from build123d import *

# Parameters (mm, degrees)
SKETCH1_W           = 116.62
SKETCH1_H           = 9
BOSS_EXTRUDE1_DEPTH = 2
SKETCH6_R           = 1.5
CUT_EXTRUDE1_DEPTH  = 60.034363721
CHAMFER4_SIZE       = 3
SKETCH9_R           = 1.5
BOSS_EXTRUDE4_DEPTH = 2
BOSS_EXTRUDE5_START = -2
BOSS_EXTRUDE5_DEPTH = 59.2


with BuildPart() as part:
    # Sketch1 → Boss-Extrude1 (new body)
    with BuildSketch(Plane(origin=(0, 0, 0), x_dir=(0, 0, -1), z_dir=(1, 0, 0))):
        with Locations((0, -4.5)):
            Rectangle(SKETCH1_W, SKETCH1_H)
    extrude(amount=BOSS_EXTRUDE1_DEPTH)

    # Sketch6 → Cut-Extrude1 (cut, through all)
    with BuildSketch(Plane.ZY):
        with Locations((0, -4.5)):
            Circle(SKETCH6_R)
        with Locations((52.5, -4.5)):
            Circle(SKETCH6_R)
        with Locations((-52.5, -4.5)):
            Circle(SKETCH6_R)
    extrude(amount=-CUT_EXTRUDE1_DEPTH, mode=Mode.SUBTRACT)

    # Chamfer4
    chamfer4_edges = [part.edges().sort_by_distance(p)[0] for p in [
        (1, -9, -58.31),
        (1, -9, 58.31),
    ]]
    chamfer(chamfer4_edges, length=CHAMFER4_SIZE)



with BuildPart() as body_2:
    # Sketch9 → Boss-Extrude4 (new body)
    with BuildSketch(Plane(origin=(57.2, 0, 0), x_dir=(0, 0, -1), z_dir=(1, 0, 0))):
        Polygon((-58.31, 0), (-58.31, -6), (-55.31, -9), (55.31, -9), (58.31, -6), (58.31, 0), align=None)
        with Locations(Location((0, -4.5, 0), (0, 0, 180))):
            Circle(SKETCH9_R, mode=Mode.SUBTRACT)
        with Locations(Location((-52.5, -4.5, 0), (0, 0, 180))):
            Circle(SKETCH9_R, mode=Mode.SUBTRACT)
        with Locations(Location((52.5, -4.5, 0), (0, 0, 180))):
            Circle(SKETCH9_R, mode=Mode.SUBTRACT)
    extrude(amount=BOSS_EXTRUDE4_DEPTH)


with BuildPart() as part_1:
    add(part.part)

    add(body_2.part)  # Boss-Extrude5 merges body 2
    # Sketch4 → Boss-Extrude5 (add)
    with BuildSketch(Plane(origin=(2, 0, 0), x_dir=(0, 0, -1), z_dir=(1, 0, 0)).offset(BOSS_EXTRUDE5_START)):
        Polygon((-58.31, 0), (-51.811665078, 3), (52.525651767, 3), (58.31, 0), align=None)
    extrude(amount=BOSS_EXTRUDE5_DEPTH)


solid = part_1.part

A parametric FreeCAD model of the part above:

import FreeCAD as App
import Part
import Sketcher

V = App.Vector
Q = App.Units.Quantity


def edges_at(feature, points):
    """Names of the edges that pass closest to the given points."""
    edges = feature.Shape.Edges
    near = lambda p: min(range(len(edges)), key=lambda i: edges[i].distToShape(Part.Vertex(*p))[0])
    return sorted({f"Edge{near(p) + 1}" for p in points})


def add_polygon(sketch, points):
    """Adds a closed chain of lines whose ends are joined by coincident constraints."""
    first, n = sketch.GeometryCount, len(points)
    for a, b in zip(points, points[1:] + points[:1]):
        sketch.addGeometry(Part.LineSegment(App.Vector(*a, 0), App.Vector(*b, 0)), False)
    for i in range(n):
        sketch.addConstraint(Sketcher.Constraint("Coincident", first + i, 2, first + (i + 1) % n, 1))

doc = App.newDocument("Part")
body = doc.addObject("PartDesign::Body", "Body")

# Sketch on YZ plane
sketch1 = doc.addObject("Sketcher::SketchObject", "Sketch")
body.addObject(sketch1)
sketch1.AttachmentSupport = (doc.YZ_Plane, [""])
sketch1.MapMode = "FlatFace"
add_polygon(sketch1, [(0, 58), (-9, 58), (-9, -58), (0, -58)])  # lines 0-3
sketch1.addConstraint(Sketcher.Constraint("Horizontal", 0))
sketch1.addConstraint(Sketcher.Constraint("Vertical", 1))
sketch1.addConstraint(Sketcher.Constraint("Horizontal", 2))
sketch1.addConstraint(Sketcher.Constraint("Vertical", 3))
sketch1.addConstraint(Sketcher.Constraint("Symmetric", 2, 2, 3, 2, -1, 1))
sketch1.addConstraint(Sketcher.Constraint("DistanceX", 0, 2, 0, 1, Q("9 mm")))
sketch1.addConstraint(Sketcher.Constraint("DistanceY", 1, 2, 1, 1, Q("116.62 mm")))
pad1 = doc.addObject("PartDesign::Pad", "Pad")
body.addObject(pad1)
pad1.Profile = sketch1
pad1.Length = 2

# Sketch on YZ plane
sketch2 = doc.addObject("Sketcher::SketchObject", "Sketch001")
body.addObject(sketch2)
sketch2.AttachmentSupport = (doc.YZ_Plane, [""])
sketch2.MapMode = "FlatFace"
sketch2.addGeometry(Part.Circle(V(-4.5, 0, 0), V(0, 0, 1), 1.5), False)
sketch2.addGeometry(Part.Circle(V(-4.5, 52.5, 0), V(0, 0, 1), 1.5), False)
sketch2.addGeometry(Part.Circle(V(-4.5, -52.5, 0), V(0, 0, 1), 1.5), False)
sketch2.addConstraint(Sketcher.Constraint("Equal", 0, 1))
sketch2.addConstraint(Sketcher.Constraint("Equal", 1, 2))
sketch2.addConstraint(Sketcher.Constraint("Symmetric", 1, 3, 2, 3, -1))
sketch2.addConstraint(Sketcher.Constraint("PointOnObject", 0, 3, -1))
sketch2.addConstraint(Sketcher.Constraint("Vertical", 0, 3, 1, 3))
sketch2.addConstraint(Sketcher.Constraint("Diameter", 0, Q("3 mm")))
sketch2.addConstraint(Sketcher.Constraint("DistanceY", 2, 3, 1, 3, Q("105 mm")))
sketch2.addConstraint(Sketcher.Constraint("DistanceX", 0, 3, -1, 1, Q("4.5 mm")))
pocket1 = doc.addObject("PartDesign::Pocket", "Pocket")
body.addObject(pocket1)
pocket1.Profile = sketch2
pocket1.Type = "ThroughAll"
pocket1.Reversed = True
doc.recompute()

chamfer = doc.addObject("PartDesign::Chamfer", "Chamfer")
body.addObject(chamfer)
chamfer.Base = (pocket1, edges_at(pocket1, [(1, -9, -58.31), (1, -9, 58.31)]))
chamfer.Size = 3
body2 = doc.addObject("PartDesign::Body", "Body001")

# Sketch on YZ plane
sketch3 = doc.addObject("Sketcher::SketchObject", "Sketch002")
body2.addObject(sketch3)
sketch3.AttachmentSupport = (doc.getObject("YZ_Plane001"), [""])
sketch3.MapMode = "FlatFace"
sketch3.AttachmentOffset = App.Placement(V(0, 0, 57.2), App.Rotation())
add_polygon(sketch3, [(0, 58.3), (-6, 58.3), (-9, 55.3), (-9, -55.3), (-6, -58.3), (0, -58.3)])  # lines 0-5
sketch3.addGeometry(Part.Circle(V(-4.5, 52.5, 0), V(0, 0, 1), 1.5), False)  # 6
sketch3.addGeometry(Part.Circle(V(-4.5, 0, 0), V(0, 0, 1), 1.5), False)  # 7
sketch3.addGeometry(Part.Circle(V(-4.5, -52.5, 0), V(0, 0, 1), 1.5), False)  # 8
sketch3.addConstraint(Sketcher.Constraint("Horizontal", 0))
sketch3.addConstraint(Sketcher.Constraint("Vertical", 2))
sketch3.addConstraint(Sketcher.Constraint("Horizontal", 4))
sketch3.addConstraint(Sketcher.Constraint("Vertical", 5))
sketch3.addConstraint(Sketcher.Constraint("Equal", 6, 7))
sketch3.addConstraint(Sketcher.Constraint("Equal", 7, 8))
sketch3.addConstraint(Sketcher.Constraint("Symmetric", 4, 2, 5, 2, -1, 1))
sketch3.addConstraint(Sketcher.Constraint("Symmetric", 6, 3, 8, 3, -1))
sketch3.addConstraint(Sketcher.Constraint("PointOnObject", 7, 3, -1))
sketch3.addConstraint(Sketcher.Constraint("Perpendicular", 1, 3))
sketch3.addConstraint(Sketcher.Constraint("Vertical", 6, 3, 7, 3))
sketch3.addConstraint(Sketcher.Constraint("Vertical", 0, 2, 3, 2))
sketch3.addConstraint(Sketcher.Constraint("Equal", 1, 3))
sketch3.addConstraint(Sketcher.Constraint("Diameter", 6, Q("3 mm")))
sketch3.addConstraint(Sketcher.Constraint("DistanceX", 0, 2, 0, 1, Q("6 mm")))
sketch3.addConstraint(Sketcher.Constraint("DistanceX", 1, 2, -1, 1, Q("9 mm")))
sketch3.addConstraint(Sketcher.Constraint("DistanceY", 8, 3, 6, 3, Q("105 mm")))
sketch3.addConstraint(Sketcher.Constraint("DistanceY", 2, 2, 2, 1, Q("110.62 mm")))
sketch3.addConstraint(Sketcher.Constraint("DistanceX", 6, 3, -1, 1, Q("4.5 mm")))
pad2 = doc.addObject("PartDesign::Pad", "Pad001")
body2.addObject(pad2)
pad2.Profile = sketch3
pad2.Length = 2
body.AllowCompound = True
doc.recompute()

boolean = doc.addObject("PartDesign::Boolean", "Boolean")
body.addObject(boolean)
boolean.Type = "Fuse"
boolean.addObjects([body2])

# Sketch on YZ plane
sketch4 = doc.addObject("Sketcher::SketchObject", "Sketch003")
body.addObject(sketch4)
sketch4.AttachmentSupport = (doc.YZ_Plane, [""])
sketch4.MapMode = "FlatFace"
add_polygon(sketch4, [(3, 52), (0, 58), (0, -58), (3, -53)])  # lines 0-3
sketch4.addConstraint(Sketcher.Constraint("Vertical", 1))
sketch4.addConstraint(Sketcher.Constraint("Vertical", 3))
sketch4.addConstraint(Sketcher.Constraint("Symmetric", 0, 2, 1, 2, -1, 1))
sketch4.addConstraint(Sketcher.Constraint("DistanceX", -1, 1, 2, 2, Q("3 mm")))
sketch4.addConstraint(Sketcher.Constraint("DistanceY", 1, 2, 1, 1, Q("116.62 mm")))
sketch4.addConstraint(Sketcher.Constraint("Distance", 0, Q("7.157399 mm")))
sketch4.addConstraint(Sketcher.Constraint("DistanceY", 3, 1, 3, 2, Q("104.337317 mm")))
pad3 = doc.addObject("PartDesign::Pad", "Pad002")
body.addObject(pad3)
pad3.Profile = sketch4
pad3.Length = 59.2

doc.recompute()
